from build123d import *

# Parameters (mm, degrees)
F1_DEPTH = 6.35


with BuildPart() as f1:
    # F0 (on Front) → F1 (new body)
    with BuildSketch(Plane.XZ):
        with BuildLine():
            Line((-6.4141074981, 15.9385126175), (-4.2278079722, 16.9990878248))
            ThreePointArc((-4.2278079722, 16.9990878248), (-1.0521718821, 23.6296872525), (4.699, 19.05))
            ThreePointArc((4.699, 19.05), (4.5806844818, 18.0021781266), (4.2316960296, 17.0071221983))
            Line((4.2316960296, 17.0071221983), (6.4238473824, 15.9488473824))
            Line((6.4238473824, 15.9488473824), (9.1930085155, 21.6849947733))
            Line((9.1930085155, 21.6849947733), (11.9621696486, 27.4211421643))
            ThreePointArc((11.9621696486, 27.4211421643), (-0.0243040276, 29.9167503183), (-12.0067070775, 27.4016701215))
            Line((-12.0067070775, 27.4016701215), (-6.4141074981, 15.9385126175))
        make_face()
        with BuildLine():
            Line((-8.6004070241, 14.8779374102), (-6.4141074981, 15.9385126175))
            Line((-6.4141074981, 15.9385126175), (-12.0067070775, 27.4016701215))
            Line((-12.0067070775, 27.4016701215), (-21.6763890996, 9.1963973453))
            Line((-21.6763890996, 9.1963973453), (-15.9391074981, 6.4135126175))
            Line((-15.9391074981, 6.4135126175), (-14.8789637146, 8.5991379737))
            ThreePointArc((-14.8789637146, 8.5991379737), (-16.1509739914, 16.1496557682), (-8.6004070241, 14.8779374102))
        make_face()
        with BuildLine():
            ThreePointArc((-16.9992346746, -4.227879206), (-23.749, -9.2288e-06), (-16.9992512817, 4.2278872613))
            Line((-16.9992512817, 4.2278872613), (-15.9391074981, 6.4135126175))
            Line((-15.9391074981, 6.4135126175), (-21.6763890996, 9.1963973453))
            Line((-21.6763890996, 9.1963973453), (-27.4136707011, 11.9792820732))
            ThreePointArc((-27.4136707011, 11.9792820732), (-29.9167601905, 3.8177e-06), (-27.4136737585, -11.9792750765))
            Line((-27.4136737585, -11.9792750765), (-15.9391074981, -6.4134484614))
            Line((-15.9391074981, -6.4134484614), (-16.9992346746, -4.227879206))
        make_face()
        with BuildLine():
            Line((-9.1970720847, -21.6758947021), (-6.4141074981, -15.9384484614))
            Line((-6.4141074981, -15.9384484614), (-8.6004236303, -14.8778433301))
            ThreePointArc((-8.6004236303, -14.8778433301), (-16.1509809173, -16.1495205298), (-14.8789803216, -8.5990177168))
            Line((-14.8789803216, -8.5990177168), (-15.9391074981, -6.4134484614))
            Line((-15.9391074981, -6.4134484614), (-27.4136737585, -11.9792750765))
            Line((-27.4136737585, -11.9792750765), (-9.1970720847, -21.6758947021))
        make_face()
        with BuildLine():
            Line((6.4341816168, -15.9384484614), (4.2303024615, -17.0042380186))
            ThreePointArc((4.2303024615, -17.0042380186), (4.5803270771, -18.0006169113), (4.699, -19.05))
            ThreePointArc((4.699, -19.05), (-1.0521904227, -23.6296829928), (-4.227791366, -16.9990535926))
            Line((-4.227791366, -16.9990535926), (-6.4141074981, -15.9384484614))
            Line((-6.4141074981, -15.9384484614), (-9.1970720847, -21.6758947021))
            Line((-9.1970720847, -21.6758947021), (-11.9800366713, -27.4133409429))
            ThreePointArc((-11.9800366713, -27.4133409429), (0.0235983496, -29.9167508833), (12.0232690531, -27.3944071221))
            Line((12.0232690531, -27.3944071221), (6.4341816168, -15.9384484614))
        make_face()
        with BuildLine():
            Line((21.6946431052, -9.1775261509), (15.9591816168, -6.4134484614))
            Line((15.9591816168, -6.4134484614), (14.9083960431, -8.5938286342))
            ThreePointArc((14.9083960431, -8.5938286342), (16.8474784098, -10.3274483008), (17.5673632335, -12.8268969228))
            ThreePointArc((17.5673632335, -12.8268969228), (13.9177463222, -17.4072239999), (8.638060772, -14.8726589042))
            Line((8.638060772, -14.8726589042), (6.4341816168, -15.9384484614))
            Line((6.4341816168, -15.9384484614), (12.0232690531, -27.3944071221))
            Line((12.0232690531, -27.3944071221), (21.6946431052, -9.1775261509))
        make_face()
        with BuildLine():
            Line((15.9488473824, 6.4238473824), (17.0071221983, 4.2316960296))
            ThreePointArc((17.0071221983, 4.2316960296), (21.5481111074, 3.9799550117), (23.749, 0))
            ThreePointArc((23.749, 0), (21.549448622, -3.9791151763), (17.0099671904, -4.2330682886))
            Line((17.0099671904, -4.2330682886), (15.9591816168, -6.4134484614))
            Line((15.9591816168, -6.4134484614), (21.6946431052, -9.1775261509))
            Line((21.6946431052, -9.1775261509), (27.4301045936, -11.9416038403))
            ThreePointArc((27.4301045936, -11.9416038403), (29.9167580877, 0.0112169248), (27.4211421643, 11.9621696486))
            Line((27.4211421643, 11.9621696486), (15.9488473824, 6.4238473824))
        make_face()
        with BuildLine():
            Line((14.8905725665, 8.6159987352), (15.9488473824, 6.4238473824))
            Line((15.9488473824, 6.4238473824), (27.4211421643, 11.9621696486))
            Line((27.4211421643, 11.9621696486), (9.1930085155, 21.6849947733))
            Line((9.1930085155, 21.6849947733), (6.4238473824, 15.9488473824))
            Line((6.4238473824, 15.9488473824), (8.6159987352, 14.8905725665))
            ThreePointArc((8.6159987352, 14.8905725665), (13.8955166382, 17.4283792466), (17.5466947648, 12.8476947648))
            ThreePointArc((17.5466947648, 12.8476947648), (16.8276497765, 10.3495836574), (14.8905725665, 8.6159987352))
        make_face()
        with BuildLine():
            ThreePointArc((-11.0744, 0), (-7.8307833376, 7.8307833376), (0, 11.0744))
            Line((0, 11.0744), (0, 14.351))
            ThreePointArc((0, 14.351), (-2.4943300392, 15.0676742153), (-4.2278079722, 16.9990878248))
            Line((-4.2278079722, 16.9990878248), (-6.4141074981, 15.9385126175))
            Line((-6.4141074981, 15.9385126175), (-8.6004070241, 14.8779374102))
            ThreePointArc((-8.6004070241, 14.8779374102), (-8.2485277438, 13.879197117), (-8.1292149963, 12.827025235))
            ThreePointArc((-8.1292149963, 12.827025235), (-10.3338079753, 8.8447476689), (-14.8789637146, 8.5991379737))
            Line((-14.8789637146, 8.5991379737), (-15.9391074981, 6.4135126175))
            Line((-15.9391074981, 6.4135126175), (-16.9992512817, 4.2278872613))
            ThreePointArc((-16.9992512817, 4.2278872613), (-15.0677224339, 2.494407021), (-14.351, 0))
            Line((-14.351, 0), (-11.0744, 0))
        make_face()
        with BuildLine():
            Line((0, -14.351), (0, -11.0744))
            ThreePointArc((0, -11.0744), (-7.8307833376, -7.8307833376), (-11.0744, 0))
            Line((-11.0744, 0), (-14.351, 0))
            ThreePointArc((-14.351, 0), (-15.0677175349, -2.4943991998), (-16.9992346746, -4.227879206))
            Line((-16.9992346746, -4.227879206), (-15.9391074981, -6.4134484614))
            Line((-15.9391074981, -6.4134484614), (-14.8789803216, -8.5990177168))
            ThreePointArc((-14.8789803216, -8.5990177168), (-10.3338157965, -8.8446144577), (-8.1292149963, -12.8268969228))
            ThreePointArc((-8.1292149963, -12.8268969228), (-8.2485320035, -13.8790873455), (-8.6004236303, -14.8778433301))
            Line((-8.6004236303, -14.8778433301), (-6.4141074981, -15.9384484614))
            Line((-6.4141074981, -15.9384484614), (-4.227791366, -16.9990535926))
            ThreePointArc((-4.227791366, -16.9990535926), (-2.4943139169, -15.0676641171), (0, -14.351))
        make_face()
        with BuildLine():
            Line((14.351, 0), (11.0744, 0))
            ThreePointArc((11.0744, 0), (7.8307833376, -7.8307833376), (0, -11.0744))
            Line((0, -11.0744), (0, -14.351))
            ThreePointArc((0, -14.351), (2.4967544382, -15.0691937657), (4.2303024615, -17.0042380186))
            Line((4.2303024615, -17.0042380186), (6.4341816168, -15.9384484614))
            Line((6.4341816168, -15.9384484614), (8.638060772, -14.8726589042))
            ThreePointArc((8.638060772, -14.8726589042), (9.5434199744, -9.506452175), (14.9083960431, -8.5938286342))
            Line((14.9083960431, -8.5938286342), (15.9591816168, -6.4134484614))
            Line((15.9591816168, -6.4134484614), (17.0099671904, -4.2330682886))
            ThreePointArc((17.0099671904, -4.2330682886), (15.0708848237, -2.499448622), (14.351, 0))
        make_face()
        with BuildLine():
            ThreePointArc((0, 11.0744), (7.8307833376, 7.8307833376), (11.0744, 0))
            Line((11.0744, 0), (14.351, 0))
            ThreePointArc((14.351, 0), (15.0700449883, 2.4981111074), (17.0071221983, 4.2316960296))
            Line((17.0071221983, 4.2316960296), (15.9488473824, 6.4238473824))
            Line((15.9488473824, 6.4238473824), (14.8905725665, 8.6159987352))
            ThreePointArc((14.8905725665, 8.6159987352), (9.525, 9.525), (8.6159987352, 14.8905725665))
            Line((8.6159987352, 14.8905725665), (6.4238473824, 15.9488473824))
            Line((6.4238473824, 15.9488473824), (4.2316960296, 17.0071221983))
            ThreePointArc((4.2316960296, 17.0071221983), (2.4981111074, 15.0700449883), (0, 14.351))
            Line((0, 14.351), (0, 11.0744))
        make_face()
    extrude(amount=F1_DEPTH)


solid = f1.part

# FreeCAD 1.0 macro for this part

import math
import FreeCAD as App
import Part
import Sketcher
Q = App.Units.Quantity

doc = App.newDocument("Part")
body = doc.addObject("PartDesign::Body", "Body")

# Sketch on XZ plane
sketch1 = body.newObject("Sketcher::SketchObject", "Sketch")
sketch1.AttachmentSupport = (doc.getObject("XZ_Plane"), [""])
sketch1.MapMode = "FlatFace"
sketch1.addGeometry(Part.LineSegment(App.Vector(9.2, 21.7, 0), App.Vector(12, 27.4, 0)), False)
sketch1.addGeometry(Part.ArcOfCircle(Part.Circle(App.Vector(0, 0, 0), App.Vector(0, 0, 1), 29.9), math.radians(66), math.radians(114)), False)
sketch1.addGeometry(Part.LineSegment(App.Vector(-12, 27.4, 0), App.Vector(-21.7, 9.2, 0)), False)
sketch1.addGeometry(Part.LineSegment(App.Vector(-21.7, 9.2, 0), App.Vector(-27.4, 12, 0)), False)
sketch1.addGeometry(Part.ArcOfCircle(Part.Circle(App.Vector(0, 0, 0), App.Vector(0, 0, 1), 29.9), math.radians(156), math.radians(204)), False)
sketch1.addGeometry(Part.LineSegment(App.Vector(-27.4, -12, 0), App.Vector(-9.2, -21.7, 0)), False)
sketch1.addGeometry(Part.LineSegment(App.Vector(-9.2, -21.7, 0), App.Vector(-12, -27.4, 0)), False)
sketch1.addGeometry(Part.ArcOfCircle(Part.Circle(App.Vector(0, 0, 0), App.Vector(0, 0, 1), 29.9), math.radians(-114), math.radians(-66)), False)
sketch1.addGeometry(Part.LineSegment(App.Vector(12, -27.4, 0), App.Vector(21.7, -9.2, 0)), False)
sketch1.addGeometry(Part.LineSegment(App.Vector(21.7, -9.2, 0), App.Vector(27.4, -11.9, 0)), False)
sketch1.addGeometry(Part.ArcOfCircle(Part.Circle(App.Vector(0, 0, 0), App.Vector(0, 0, 1), 29.9), math.radians(-24), math.radians(24)), False)
sketch1.addGeometry(Part.LineSegment(App.Vector(27.4, 12, 0), App.Vector(9.2, 21.7, 0)), False)
sketch1.addGeometry(Part.ArcOfCircle(Part.Circle(App.Vector(0, 19.1, 0), App.Vector(0, 0, 1), 4.7), math.radians(0), math.radians(206)), False)
sketch1.addGeometry(Part.ArcOfCircle(Part.Circle(App.Vector(0, 19.1, 0), App.Vector(0, 0, 1), 4.7), math.radians(-26), math.radians(0)), False)
sketch1.addGeometry(Part.ArcOfCircle(Part.Circle(App.Vector(0, 19.1, 0), App.Vector(0, 0, 1), 4.7), math.radians(-90), math.radians(-26)), False)
sketch1.addGeometry(Part.ArcOfCircle(Part.Circle(App.Vector(0, 19.1, 0), App.Vector(0, 0, 1), 4.7), math.radians(-154), math.radians(-90)), False)
sketch1.addGeometry(Part.ArcOfCircle(Part.Circle(App.Vector(12.8, 12.8, 0), App.Vector(0, 0, 1), 4.7), math.radians(0), math.radians(154)), False)
sketch1.addGeometry(Part.ArcOfCircle(Part.Circle(App.Vector(12.8, 12.8, 0), App.Vector(0, 0, 1), 4.7), math.radians(-64), math.radians(0)), False)
sketch1.addGeometry(Part.ArcOfCircle(Part.Circle(App.Vector(12.8, 12.8, 0), App.Vector(0, 0, 1), 4.7), math.radians(154), math.radians(296)), False)
sketch1.addGeometry(Part.ArcOfCircle(Part.Circle(App.Vector(19.1, 0, 0), App.Vector(0, 0, 1), 4.7), math.radians(0), math.radians(116)), False)
sketch1.addGeometry(Part.ArcOfCircle(Part.Circle(App.Vector(19.1, 0, 0), App.Vector(0, 0, 1), 4.7), math.radians(-116), math.radians(0)), False)
sketch1.addGeometry(Part.ArcOfCircle(Part.Circle(App.Vector(19.1, 0, 0), App.Vector(0, 0, 1), 4.7), math.radians(180), math.radians(244)), False)
sketch1.addGeometry(Part.ArcOfCircle(Part.Circle(App.Vector(19.1, 0, 0), App.Vector(0, 0, 1), 4.7), math.radians(116), math.radians(180)), False)
sketch1.addGeometry(Part.ArcOfCircle(Part.Circle(App.Vector(0, 0, 0), App.Vector(0, 0, 1), 11.1), math.radians(-90), math.radians(0)), False)
sketch1.addGeometry(Part.ArcOfCircle(Part.Circle(App.Vector(0, 0, 0), App.Vector(0, 0, 1), 11.1), math.radians(180), math.radians(270)), False)
sketch1.addGeometry(Part.ArcOfCircle(Part.Circle(App.Vector(0, 0, 0), App.Vector(0, 0, 1), 11.1), math.radians(90), math.radians(180)), False)
sketch1.addGeometry(Part.ArcOfCircle(Part.Circle(App.Vector(0, 0, 0), App.Vector(0, 0, 1), 11.1), math.radians(0), math.radians(90)), False)
sketch1.addGeometry(Part.ArcOfCircle(Part.Circle(App.Vector(12.9, -12.8, 0), App.Vector(0, 0, 1), 4.7), math.radians(0), math.radians(64)), False)
sketch1.addGeometry(Part.ArcOfCircle(Part.Circle(App.Vector(12.9, -12.8, 0), App.Vector(0, 0, 1), 4.7), math.radians(-154), math.radians(0)), False)
sketch1.addGeometry(Part.ArcOfCircle(Part.Circle(App.Vector(12.9, -12.8, 0), App.Vector(0, 0, 1), 4.7), math.radians(64), math.radians(206)), False)
sketch1.addGeometry(Part.ArcOfCircle(Part.Circle(App.Vector(0, -19.1, 0), App.Vector(0, 0, 1), 4.7), math.radians(0), math.radians(26)), False)
sketch1.addGeometry(Part.ArcOfCircle(Part.Circle(App.Vector(0, -19.1, 0), App.Vector(0, 0, 1), 4.7), math.radians(154), math.radians(360)), False)
sketch1.addGeometry(Part.ArcOfCircle(Part.Circle(App.Vector(0, -19.1, 0), App.Vector(0, 0, 1), 4.7), math.radians(90), math.radians(154)), False)
sketch1.addGeometry(Part.ArcOfCircle(Part.Circle(App.Vector(0, -19.1, 0), App.Vector(0, 0, 1), 4.7), math.radians(26), math.radians(90)), False)
sketch1.addGeometry(Part.ArcOfCircle(Part.Circle(App.Vector(-12.8, -12.8, 0), App.Vector(0, 0, 1), 4.7), math.radians(116), math.radians(334)), False)
sketch1.addGeometry(Part.ArcOfCircle(Part.Circle(App.Vector(-12.8, -12.8, 0), App.Vector(0, 0, 1), 4.7), math.radians(0), math.radians(116)), False)
sketch1.addGeometry(Part.ArcOfCircle(Part.Circle(App.Vector(-12.8, -12.8, 0), App.Vector(0, 0, 1), 4.7), math.radians(-26), math.radians(0)), False)
sketch1.addGeometry(Part.ArcOfCircle(Part.Circle(App.Vector(-19.1, 0, 0), App.Vector(0, 0, 1), 4.7), math.radians(64), math.radians(296)), False)
sketch1.addGeometry(Part.ArcOfCircle(Part.Circle(App.Vector(-19.1, 0, 0), App.Vector(0, 0, 1), 4.7), math.radians(0), math.radians(64)), False)
sketch1.addGeometry(Part.ArcOfCircle(Part.Circle(App.Vector(-19.1, 0, 0), App.Vector(0, 0, 1), 4.7), math.radians(-64), math.radians(0)), False)
sketch1.addGeometry(Part.ArcOfCircle(Part.Circle(App.Vector(-12.8, 12.8, 0), App.Vector(0, 0, 1), 4.7), math.radians(26), math.radians(244)), False)
sketch1.addGeometry(Part.ArcOfCircle(Part.Circle(App.Vector(-12.8, 12.8, 0), App.Vector(0, 0, 1), 4.7), math.radians(0), math.radians(26)), False)
sketch1.addGeometry(Part.ArcOfCircle(Part.Circle(App.Vector(-12.8, 12.8, 0), App.Vector(0, 0, 1), 4.7), math.radians(-116), math.radians(0)), False)
sketch1.addConstraint(Sketcher.Constraint("Coincident", 0, 2, 1, 1))
sketch1.addConstraint(Sketcher.Constraint("Coincident", 1, 2, 2, 1))
sketch1.addConstraint(Sketcher.Constraint("Coincident", 2, 2, 3, 1))
sketch1.addConstraint(Sketcher.Constraint("Coincident", 3, 2, 4, 1))
sketch1.addConstraint(Sketcher.Constraint("Coincident", 4, 2, 5, 1))
sketch1.addConstraint(Sketcher.Constraint("Coincident", 5, 2, 6, 1))
sketch1.addConstraint(Sketcher.Constraint("Coincident", 6, 2, 7, 1))
sketch1.addConstraint(Sketcher.Constraint("Coincident", 7, 2, 8, 1))
sketch1.addConstraint(Sketcher.Constraint("Coincident", 8, 2, 9, 1))
sketch1.addConstraint(Sketcher.Constraint("Coincident", 9, 2, 10, 1))
sketch1.addConstraint(Sketcher.Constraint("Coincident", 10, 2, 11, 1))
sketch1.addConstraint(Sketcher.Constraint("Coincident", 11, 2, 0, 1))
sketch1.addConstraint(Sketcher.Constraint("Tangent", 12, 1, 13, 2))
sketch1.addConstraint(Sketcher.Constraint("Tangent", 13, 1, 14, 2))
sketch1.addConstraint(Sketcher.Constraint("Tangent", 14, 1, 15, 2))
sketch1.addConstraint(Sketcher.Constraint("Tangent", 15, 1, 12, 2))
sketch1.addConstraint(Sketcher.Constraint("Tangent", 16, 1, 17, 2))
sketch1.addConstraint(Sketcher.Constraint("Tangent", 17, 1, 18, 2))
sketch1.addConstraint(Sketcher.Constraint("Tangent", 18, 1, 16, 2))
sketch1.addConstraint(Sketcher.Constraint("Tangent", 19, 1, 20, 2))
sketch1.addConstraint(Sketcher.Constraint("Tangent", 20, 1, 21, 2))
sketch1.addConstraint(Sketcher.Constraint("Tangent", 21, 1, 22, 2))
sketch1.addConstraint(Sketcher.Constraint("Tangent", 22, 1, 19, 2))
sketch1.addConstraint(Sketcher.Constraint("Tangent", 23, 1, 24, 2))
sketch1.addConstraint(Sketcher.Constraint("Tangent", 24, 1, 25, 2))
sketch1.addConstraint(Sketcher.Constraint("Tangent", 25, 1, 26, 2))
sketch1.addConstraint(Sketcher.Constraint("Tangent", 26, 1, 23, 2))
sketch1.addConstraint(Sketcher.Constraint("Tangent", 27, 1, 28, 2))
sketch1.addConstraint(Sketcher.Constraint("Tangent", 28, 1, 29, 2))
sketch1.addConstraint(Sketcher.Constraint("Tangent", 29, 1, 27, 2))
sketch1.addConstraint(Sketcher.Constraint("Tangent", 30, 1, 31, 2))
sketch1.addConstraint(Sketcher.Constraint("Tangent", 31, 1, 32, 2))
sketch1.addConstraint(Sketcher.Constraint("Tangent", 32, 1, 33, 2))
sketch1.addConstraint(Sketcher.Constraint("Tangent", 33, 1, 30, 2))
sketch1.addConstraint(Sketcher.Constraint("Tangent", 34, 1, 35, 2))
sketch1.addConstraint(Sketcher.Constraint("Tangent", 35, 1, 36, 2))
sketch1.addConstraint(Sketcher.Constraint("Tangent", 36, 1, 34, 2))
sketch1.addConstraint(Sketcher.Constraint("Tangent", 37, 1, 38, 2))
sketch1.addConstraint(Sketcher.Constraint("Tangent", 38, 1, 39, 2))
sketch1.addConstraint(Sketcher.Constraint("Tangent", 39, 1, 37, 2))
sketch1.addConstraint(Sketcher.Constraint("Tangent", 40, 1, 41, 2))
sketch1.addConstraint(Sketcher.Constraint("Tangent", 41, 1, 42, 2))
sketch1.addConstraint(Sketcher.Constraint("Tangent", 42, 1, 40, 2))
sketch1.addConstraint(Sketcher.Constraint("Coincident", 1, 3, -1, 1))
sketch1.addConstraint(Sketcher.Constraint("Coincident", 4, 3, -1, 1))
sketch1.addConstraint(Sketcher.Constraint("Coincident", 7, 3, -1, 1))
sketch1.addConstraint(Sketcher.Constraint("Coincident", 10, 3, -1, 1))
sketch1.addConstraint(Sketcher.Constraint("Coincident", 23, 3, -1, 1))
sketch1.addConstraint(Sketcher.Constraint("Equal", 1, 4))
sketch1.addConstraint(Sketcher.Constraint("Equal", 4, 7))
sketch1.addConstraint(Sketcher.Constraint("Equal", 7, 10))
sketch1.addConstraint(Sketcher.Constraint("Equal", 12, 13))
sketch1.addConstraint(Sketcher.Constraint("Equal", 15, 16))
sketch1.addConstraint(Sketcher.Constraint("Equal", 18, 19))
sketch1.addConstraint(Sketcher.Constraint("Equal", 19, 20))
sketch1.addConstraint(Sketcher.Constraint("Equal", 23, 24))
sketch1.addConstraint(Sketcher.Constraint("Equal", 22, 27))
sketch1.addConstraint(Sketcher.Constraint("Equal", 29, 30))
sketch1.addConstraint(Sketcher.Constraint("Equal", 30, 31))
sketch1.addConstraint(Sketcher.Constraint("Equal", 33, 34))
sketch1.addConstraint(Sketcher.Constraint("Equal", 36, 37))
sketch1.addConstraint(Sketcher.Constraint("Equal", 39, 40))
sketch1.addConstraint(Sketcher.Constraint("Symmetric", 12, 3, 30, 3, -1, 1))
sketch1.addConstraint(Sketcher.Constraint("Symmetric", 19, 3, 37, 3, -1, 1))
sketch1.addConstraint(Sketcher.Constraint("Symmetric", 12, 1, 30, 1, -1))
sketch1.addConstraint(Sketcher.Constraint("PointOnObject", 19, 3, -1))
sketch1.addConstraint(Sketcher.Constraint("PointOnObject", 14, 1, -2))
sketch1.addConstraint(Sketcher.Constraint("PointOnObject", 19, 1, -1))
sketch1.addConstraint(Sketcher.Constraint("PointOnObject", 21, 1, -1))
sketch1.addConstraint(Sketcher.Constraint("PointOnObject", 23, 1, -2))
sketch1.addConstraint(Sketcher.Constraint("PointOnObject", 24, 1, -1))
sketch1.addConstraint(Sketcher.Constraint("PointOnObject", 25, 1, -2))
sketch1.addConstraint(Sketcher.Constraint("PointOnObject", 26, 1, -1))
sketch1.addConstraint(Sketcher.Constraint("PointOnObject", 32, 1, -2))
sketch1.addConstraint(Sketcher.Constraint("PointOnObject", 38, 1, -1))
sketch1.addConstraint(Sketcher.Constraint("Perpendicular", 3, 6))
sketch1.addConstraint(Sketcher.Constraint("Horizontal", 29, 3, 34, 3))
sketch1.addConstraint(Sketcher.Constraint("Horizontal", 15, 3, 12, 1))
sketch1.addConstraint(Sketcher.Constraint("Horizontal", 18, 3, 16, 1))
sketch1.addConstraint(Sketcher.Constraint("Horizontal", 36, 3, 27, 1))
sketch1.addConstraint(Sketcher.Constraint("Horizontal", 27, 1, 35, 1))
sketch1.addConstraint(Sketcher.Constraint("Horizontal", 42, 3, 41, 1))
sketch1.addConstraint(Sketcher.Constraint("Vertical", 36, 3, 40, 3))
sketch1.addConstraint(Sketcher.Constraint("Radius", 12, Q("0.185 in")))
sketch1.addConstraint(Sketcher.Constraint("Radius", 23, Q("0.436 in")))
sketch1.addConstraint(Sketcher.Constraint("DistanceY", -1, 1, 12, 3, Q("0.75 in")))
sketch1.addConstraint(Sketcher.Constraint("DistanceX", -1, 1, 19, 3, Q("0.75 in")))
sketch1.addConstraint(Sketcher.Constraint("Radius", 1, Q("29.91676 mm")))
sketch1.addConstraint(Sketcher.Constraint("DistanceY", -1, 1, 17, 1, Q("8.615999 mm")))
sketch1.addConstraint(Sketcher.Constraint("DistanceX", -1, 1, 18, 1, Q("8.615999 mm")))
sketch1.addConstraint(Sketcher.Constraint("Distance", 6, Q("6.376769 mm")))
sketch1.addConstraint(Sketcher.Constraint("Distance", 8, Q("20.62499 mm")))
sketch1.addConstraint(Sketcher.Constraint("Distance", 9, Q("6.366761 mm")))
sketch1.addConstraint(Sketcher.Constraint("DistanceX", -1, 1, 0, 2, Q("11.96217 mm")))
sketch1.addConstraint(Sketcher.Constraint("DistanceY", -1, 1, 1, 2, Q("27.40167 mm")))
sketch1.addConstraint(Sketcher.Constraint("DistanceX", 2, 2, -1, 1, Q("21.676389 mm")))
sketch1.addConstraint(Sketcher.Constraint("DistanceX", 3, 2, -1, 1, Q("27.413671 mm")))
sketch1.addConstraint(Sketcher.Constraint("DistanceY", 6, 2, -1, 1, Q("27.413341 mm")))
sketch1.addConstraint(Sketcher.Constraint("DistanceX", -1, 1, 7, 2, Q("12.023269 mm")))
sketch1.addConstraint(Sketcher.Constraint("DistanceY", -1, 1, 10, 2, Q("11.96217 mm")))
sketch1.addConstraint(Sketcher.Constraint("DistanceX", -1, 1, 11, 2, Q("9.193009 mm")))
sketch1.addConstraint(Sketcher.Constraint("DistanceY", 20, 1, -1, 1, Q("4.233068 mm")))
sketch1.addConstraint(Sketcher.Constraint("DistanceX", -1, 1, 28, 1, Q("8.638061 mm")))
sketch1.addConstraint(Sketcher.Constraint("DistanceY", 28, 1, -1, 1, Q("14.872659 mm")))
sketch1.addConstraint(Sketcher.Constraint("DistanceY", 29, 1, -1, 1, Q("8.593829 mm")))
sketch1.addConstraint(Sketcher.Constraint("DistanceX", 31, 1, -1, 1, Q("4.227791 mm")))
sketch1.addConstraint(Sketcher.Constraint("DistanceY", 33, 1, -1, 1, Q("17.004238 mm")))
sketch1.addConstraint(Sketcher.Constraint("DistanceX", 34, 1, -1, 1, Q("14.87898 mm")))
sketch1.addConstraint(Sketcher.Constraint("DistanceX", 37, 1, -1, 1, Q("16.999251 mm")))
sketch1.addConstraint(Sketcher.Constraint("DistanceY", 39, 1, -1, 1, Q("4.227879 mm")))
sketch1.addConstraint(Sketcher.Constraint("Distance", 0, Q("6.369587 mm")))
sketch1.addConstraint(Sketcher.Constraint("Distance", 2, Q("20.613944 mm")))
sketch1.addConstraint(Sketcher.Constraint("Distance", 5, Q("20.636594 mm")))
sketch1.addConstraint(Sketcher.Constraint("DistanceX", -1, 1, 16, 3, Q("12.847695 mm")))
sketch1.addConstraint(Sketcher.Constraint("DistanceY", -1, 1, 16, 3, Q("12.847695 mm")))
sketch1.addConstraint(Sketcher.Constraint("DistanceX", -1, 1, 27, 3, Q("12.868363 mm")))
sketch1.addConstraint(Sketcher.Constraint("DistanceX", 34, 3, -1, 1, Q("12.828215 mm")))
sketch1.addConstraint(Sketcher.Constraint("DistanceY", -1, 1, 40, 3, Q("12.827025 mm")))
sketch1.addConstraint(Sketcher.Constraint("DistanceX", -1, 1, 8, 2, Q("21.694643 mm")))
sketch1.addConstraint(Sketcher.Constraint("DistanceX", -1, 1, 13, 1, Q("4.231696 mm")))
sketch1.addConstraint(Sketcher.Constraint("DistanceX", 15, 1, -1, 1, Q("4.227808 mm")))
sketch1.addConstraint(Sketcher.Constraint("DistanceX", -1, 1, 22, 1, Q("17.007122 mm")))
sketch1.addConstraint(Sketcher.Constraint("DistanceX", 36, 1, -1, 1, Q("8.600424 mm")))
sketch1.addConstraint(Sketcher.Constraint("DistanceX", 40, 1, -1, 1, Q("8.600407 mm")))
sketch1.addConstraint(Sketcher.Constraint("DistanceX", 42, 1, -1, 1, Q("14.878964 mm")))
pad1 = body.newObject("PartDesign::Pad", "Pad")
pad1.Profile = sketch1
pad1.Length = Q("0.25 in")

doc.recompute()
